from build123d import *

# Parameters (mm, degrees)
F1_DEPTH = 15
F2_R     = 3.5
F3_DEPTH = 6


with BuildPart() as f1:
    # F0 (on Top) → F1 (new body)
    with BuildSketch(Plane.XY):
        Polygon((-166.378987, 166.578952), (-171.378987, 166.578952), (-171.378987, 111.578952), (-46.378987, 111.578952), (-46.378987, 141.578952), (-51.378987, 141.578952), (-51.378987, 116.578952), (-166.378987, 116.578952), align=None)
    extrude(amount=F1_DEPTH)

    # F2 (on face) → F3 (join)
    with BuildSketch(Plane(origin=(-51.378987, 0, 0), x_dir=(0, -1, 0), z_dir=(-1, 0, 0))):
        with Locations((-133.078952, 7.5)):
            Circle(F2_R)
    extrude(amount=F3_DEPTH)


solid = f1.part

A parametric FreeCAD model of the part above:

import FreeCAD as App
import Part
import Sketcher

V = App.Vector
Q = App.Units.Quantity

doc = App.newDocument("Part")
params = doc.addObject("Spreadsheet::Sheet", "Params")
for row, (alias, value) in enumerate([
    ("sketch1_width", "5 mm"),
    ("sketch1_width2", "125 mm"),
    ("sketch1_height", "55 mm"),
    ("sketch1_height2", "30 mm"),
    ("sketch1_height3", "25 mm"),
    ("pad1_length", "15 mm"),
    ("sketch2_diameter", "7 mm"),
    ("pad2_length", "6 mm"),
], start=1):
    params.set(f"A{row}", alias)
    params.set(f"B{row}", "=" + value)
    params.setAlias(f"B{row}", alias)

body = doc.addObject("PartDesign::Body", "Body")

# Sketch on XY plane
sketch1 = body.newObject("Sketcher::SketchObject", "Sketch")
sketch1.AttachmentSupport = (doc.getObject("XY_Plane"), [""])
sketch1.MapMode = "FlatFace"
sketch1.addGeometry(Part.LineSegment(V(-166, 167, 0), V(-171, 167, 0)), False)
sketch1.addGeometry(Part.LineSegment(V(-171, 167, 0), V(-171, 112, 0)), False)
sketch1.addGeometry(Part.LineSegment(V(-171, 112, 0), V(-46, 112, 0)), False)
sketch1.addGeometry(Part.LineSegment(V(-46, 112, 0), V(-46, 142, 0)), False)
sketch1.addGeometry(Part.LineSegment(V(-46, 142, 0), V(-51, 142, 0)), False)
sketch1.addGeometry(Part.LineSegment(V(-51, 142, 0), V(-51, 117, 0)), False)
sketch1.addGeometry(Part.LineSegment(V(-51, 117, 0), V(-166, 117, 0)), False)
sketch1.addGeometry(Part.LineSegment(V(-166, 117, 0), V(-166, 167, 0)), False)
sketch1.addConstraint(Sketcher.Constraint("Coincident", 0, 2, 1, 1))
sketch1.addConstraint(Sketcher.Constraint("Coincident", 1, 2, 2, 1))
sketch1.addConstraint(Sketcher.Constraint("Coincident", 2, 2, 3, 1))
sketch1.addConstraint(Sketcher.Constraint("Coincident", 3, 2, 4, 1))
sketch1.addConstraint(Sketcher.Constraint("Coincident", 4, 2, 5, 1))
sketch1.addConstraint(Sketcher.Constraint("Coincident", 5, 2, 6, 1))
sketch1.addConstraint(Sketcher.Constraint("Coincident", 6, 2, 7, 1))
sketch1.addConstraint(Sketcher.Constraint("Coincident", 7, 2, 0, 1))
sketch1.addConstraint(Sketcher.Constraint("Horizontal", 0))
sketch1.addConstraint(Sketcher.Constraint("Vertical", 1))
sketch1.addConstraint(Sketcher.Constraint("Horizontal", 2))
sketch1.addConstraint(Sketcher.Constraint("Vertical", 3))
sketch1.addConstraint(Sketcher.Constraint("Horizontal", 4))
sketch1.addConstraint(Sketcher.Constraint("Vertical", 5))
sketch1.addConstraint(Sketcher.Constraint("Horizontal", 6))
sketch1.addConstraint(Sketcher.Constraint("Vertical", 7))
sketch1.addConstraint(Sketcher.Constraint("Equal", 0, 4))
sketch1.addConstraint(Sketcher.Constraint("DistanceX", 0, 2, 0, 1, Q("5 mm")))
sketch1.addConstraint(Sketcher.Constraint("DistanceX", 2, 1, 2, 2, Q("125 mm")))
sketch1.addConstraint(Sketcher.Constraint("DistanceY", 1, 2, 1, 1, Q("55 mm")))
sketch1.addConstraint(Sketcher.Constraint("DistanceY", 3, 1, 3, 2, Q("30 mm")))
sketch1.addConstraint(Sketcher.Constraint("DistanceY", 5, 2, 5, 1, Q("25 mm")))
sketch1.addConstraint(Sketcher.Constraint("DistanceY", -1, 1, 0, 2, Q("166.578952 mm")))
sketch1.addConstraint(Sketcher.Constraint("DistanceX", 0, 2, -1, 1, Q("171.378987 mm")))
sketch1.setExpression("Constraints[17]", "Params.sketch1_width")
sketch1.setExpression("Constraints[18]", "Params.sketch1_width2")
sketch1.setExpression("Constraints[19]", "Params.sketch1_height")
sketch1.setExpression("Constraints[20]", "Params.sketch1_height2")
sketch1.setExpression("Constraints[21]", "Params.sketch1_height3")
pad1 = body.newObject("PartDesign::Pad", "Pad")
pad1.Profile = sketch1
pad1.setExpression("Length", "Params.pad1_length")

# Sketch on YZ plane
sketch2 = body.newObject("Sketcher::SketchObject", "Sketch001")
sketch2.AttachmentSupport = (doc.getObject("YZ_Plane"), [""])
sketch2.MapMode = "FlatFace"
sketch2.AttachmentOffset = App.Placement(V(0, 0, -51.378987), App.Rotation())
sketch2.addGeometry(Part.Circle(V(133.1, 7.5, 0), V(0, 0, 1), 3.5), False)
sketch2.addConstraint(Sketcher.Constraint("Diameter", 0, Q("7 mm")))
sketch2.addConstraint(Sketcher.Constraint("DistanceY", -1, 1, 0, 3, Q("7.5 mm")))
sketch2.addConstraint(Sketcher.Constraint("DistanceX", -1, 1, 0, 3, Q("133.078952 mm")))
sketch2.setExpression("Constraints[0]", "Params.sketch2_diameter")
pad2 = body.newObject("PartDesign::Pad", "Pad001")
pad2.Profile = sketch2
pad2.setExpression("Length", "Params.pad2_length")
pad2.Reversed = True

doc.recompute()
